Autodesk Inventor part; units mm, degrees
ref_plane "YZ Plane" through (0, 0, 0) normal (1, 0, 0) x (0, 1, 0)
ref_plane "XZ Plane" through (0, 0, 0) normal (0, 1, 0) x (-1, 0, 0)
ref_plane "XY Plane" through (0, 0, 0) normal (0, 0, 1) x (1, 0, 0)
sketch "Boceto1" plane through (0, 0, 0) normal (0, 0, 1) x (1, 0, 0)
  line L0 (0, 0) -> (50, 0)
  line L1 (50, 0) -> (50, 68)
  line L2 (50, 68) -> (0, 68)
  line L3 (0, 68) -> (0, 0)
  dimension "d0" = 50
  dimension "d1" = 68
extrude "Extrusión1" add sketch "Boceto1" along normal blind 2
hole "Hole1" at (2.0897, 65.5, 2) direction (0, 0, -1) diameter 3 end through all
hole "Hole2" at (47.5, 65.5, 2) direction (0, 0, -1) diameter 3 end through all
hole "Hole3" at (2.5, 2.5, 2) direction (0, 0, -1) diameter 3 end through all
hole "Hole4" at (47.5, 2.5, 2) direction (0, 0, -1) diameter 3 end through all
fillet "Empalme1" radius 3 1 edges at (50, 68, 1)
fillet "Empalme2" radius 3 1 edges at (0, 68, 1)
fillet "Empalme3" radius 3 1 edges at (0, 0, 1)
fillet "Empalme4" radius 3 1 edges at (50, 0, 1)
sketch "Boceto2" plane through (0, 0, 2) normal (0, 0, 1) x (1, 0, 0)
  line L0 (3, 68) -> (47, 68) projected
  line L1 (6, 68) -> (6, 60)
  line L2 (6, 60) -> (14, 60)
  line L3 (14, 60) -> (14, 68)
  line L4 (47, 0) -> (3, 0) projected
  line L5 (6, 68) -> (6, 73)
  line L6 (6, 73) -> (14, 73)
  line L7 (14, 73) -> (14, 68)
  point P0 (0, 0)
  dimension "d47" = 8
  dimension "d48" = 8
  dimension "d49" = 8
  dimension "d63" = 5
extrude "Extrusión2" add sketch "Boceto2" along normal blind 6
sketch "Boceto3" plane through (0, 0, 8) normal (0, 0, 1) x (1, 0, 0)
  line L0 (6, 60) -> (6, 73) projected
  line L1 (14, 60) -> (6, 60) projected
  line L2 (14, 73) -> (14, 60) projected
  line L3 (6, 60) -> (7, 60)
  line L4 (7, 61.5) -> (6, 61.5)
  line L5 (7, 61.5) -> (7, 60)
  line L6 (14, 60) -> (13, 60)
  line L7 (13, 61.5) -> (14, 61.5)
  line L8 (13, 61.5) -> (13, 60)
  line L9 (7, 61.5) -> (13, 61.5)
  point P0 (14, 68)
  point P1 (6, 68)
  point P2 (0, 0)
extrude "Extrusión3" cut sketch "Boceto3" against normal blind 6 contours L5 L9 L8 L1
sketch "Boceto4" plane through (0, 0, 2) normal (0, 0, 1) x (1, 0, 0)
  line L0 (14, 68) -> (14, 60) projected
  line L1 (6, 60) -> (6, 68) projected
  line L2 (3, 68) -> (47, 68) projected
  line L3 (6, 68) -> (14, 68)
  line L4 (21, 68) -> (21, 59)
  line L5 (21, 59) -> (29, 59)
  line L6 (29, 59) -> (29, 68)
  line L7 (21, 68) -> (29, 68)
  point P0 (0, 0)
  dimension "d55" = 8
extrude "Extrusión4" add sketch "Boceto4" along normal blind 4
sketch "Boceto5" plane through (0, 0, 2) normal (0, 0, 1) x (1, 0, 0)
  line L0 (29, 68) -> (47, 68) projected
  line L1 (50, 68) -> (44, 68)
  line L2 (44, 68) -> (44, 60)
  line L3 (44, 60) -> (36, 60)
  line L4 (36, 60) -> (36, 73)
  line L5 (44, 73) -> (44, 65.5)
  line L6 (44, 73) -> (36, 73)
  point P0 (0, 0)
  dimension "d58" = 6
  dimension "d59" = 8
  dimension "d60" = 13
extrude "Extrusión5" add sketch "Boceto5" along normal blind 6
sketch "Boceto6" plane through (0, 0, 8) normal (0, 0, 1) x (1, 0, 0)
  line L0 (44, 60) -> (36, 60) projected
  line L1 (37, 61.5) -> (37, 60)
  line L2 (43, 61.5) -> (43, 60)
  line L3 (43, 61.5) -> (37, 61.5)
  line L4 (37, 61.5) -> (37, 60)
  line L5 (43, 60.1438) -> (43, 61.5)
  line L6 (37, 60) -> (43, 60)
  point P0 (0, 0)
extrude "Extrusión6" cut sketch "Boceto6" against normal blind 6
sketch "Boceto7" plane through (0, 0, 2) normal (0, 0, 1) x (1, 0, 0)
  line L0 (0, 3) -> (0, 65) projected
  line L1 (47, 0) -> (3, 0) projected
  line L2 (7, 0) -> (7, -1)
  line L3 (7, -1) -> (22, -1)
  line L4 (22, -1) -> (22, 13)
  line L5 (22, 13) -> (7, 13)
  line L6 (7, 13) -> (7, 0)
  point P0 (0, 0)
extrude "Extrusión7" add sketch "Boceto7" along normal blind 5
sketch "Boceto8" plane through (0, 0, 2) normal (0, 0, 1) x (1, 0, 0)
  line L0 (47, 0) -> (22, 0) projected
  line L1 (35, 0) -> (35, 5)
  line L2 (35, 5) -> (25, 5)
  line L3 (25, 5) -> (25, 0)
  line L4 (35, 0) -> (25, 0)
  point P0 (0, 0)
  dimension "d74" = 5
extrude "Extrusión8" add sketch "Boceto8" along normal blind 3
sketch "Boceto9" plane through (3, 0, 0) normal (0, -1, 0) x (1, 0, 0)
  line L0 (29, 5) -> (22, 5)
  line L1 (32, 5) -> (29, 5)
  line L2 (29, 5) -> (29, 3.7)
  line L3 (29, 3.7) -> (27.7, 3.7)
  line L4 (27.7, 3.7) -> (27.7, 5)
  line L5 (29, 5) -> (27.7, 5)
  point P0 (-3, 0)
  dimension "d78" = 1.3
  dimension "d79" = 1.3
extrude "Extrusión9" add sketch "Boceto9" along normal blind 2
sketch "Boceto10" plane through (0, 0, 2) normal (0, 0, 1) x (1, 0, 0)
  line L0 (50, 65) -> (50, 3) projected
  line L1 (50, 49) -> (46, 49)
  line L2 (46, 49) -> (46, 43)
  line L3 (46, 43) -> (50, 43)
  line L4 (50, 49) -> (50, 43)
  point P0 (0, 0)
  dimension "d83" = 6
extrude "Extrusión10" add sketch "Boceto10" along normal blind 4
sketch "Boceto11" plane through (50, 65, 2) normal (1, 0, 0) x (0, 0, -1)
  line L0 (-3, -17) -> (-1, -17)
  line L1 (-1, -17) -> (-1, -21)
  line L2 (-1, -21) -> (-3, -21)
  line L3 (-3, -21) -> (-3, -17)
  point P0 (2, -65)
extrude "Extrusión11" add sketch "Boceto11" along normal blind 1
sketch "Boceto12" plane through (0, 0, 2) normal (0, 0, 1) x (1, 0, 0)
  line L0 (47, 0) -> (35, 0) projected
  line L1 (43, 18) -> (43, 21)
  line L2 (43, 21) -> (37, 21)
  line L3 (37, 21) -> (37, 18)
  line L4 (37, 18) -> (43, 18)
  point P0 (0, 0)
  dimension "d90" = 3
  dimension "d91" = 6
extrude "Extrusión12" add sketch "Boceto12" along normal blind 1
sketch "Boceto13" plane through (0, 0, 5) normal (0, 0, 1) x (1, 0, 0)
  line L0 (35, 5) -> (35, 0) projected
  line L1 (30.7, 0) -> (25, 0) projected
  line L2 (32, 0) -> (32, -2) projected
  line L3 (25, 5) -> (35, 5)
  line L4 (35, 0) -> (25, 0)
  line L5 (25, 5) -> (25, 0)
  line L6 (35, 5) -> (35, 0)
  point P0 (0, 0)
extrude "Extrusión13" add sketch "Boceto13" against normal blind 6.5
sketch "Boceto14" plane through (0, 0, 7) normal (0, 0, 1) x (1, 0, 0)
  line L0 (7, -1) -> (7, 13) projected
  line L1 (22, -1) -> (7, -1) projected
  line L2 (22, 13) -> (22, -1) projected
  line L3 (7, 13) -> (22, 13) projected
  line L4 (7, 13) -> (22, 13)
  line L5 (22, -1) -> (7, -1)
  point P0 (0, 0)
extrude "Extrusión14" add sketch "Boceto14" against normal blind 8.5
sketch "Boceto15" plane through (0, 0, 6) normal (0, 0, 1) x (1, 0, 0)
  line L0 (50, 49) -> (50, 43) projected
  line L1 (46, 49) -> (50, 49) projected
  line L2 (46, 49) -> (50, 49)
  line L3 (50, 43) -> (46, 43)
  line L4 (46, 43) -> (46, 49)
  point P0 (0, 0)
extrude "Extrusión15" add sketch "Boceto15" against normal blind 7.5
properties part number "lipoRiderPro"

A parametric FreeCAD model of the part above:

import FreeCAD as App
import Part
import Sketcher
from FreeCAD import Vector


def edges_at(feature, points):
    """Names of the edges that pass closest to the given points."""
    edges = feature.Shape.Edges
    near = lambda p: min(range(len(edges)), key=lambda i: edges[i].distToShape(Part.Vertex(*p))[0])
    return sorted({f"Edge{near(p) + 1}" for p in points})


def add_polygon(sketch, points):
    """Adds a closed chain of lines whose ends are joined by coincident constraints."""
    first, n = sketch.GeometryCount, len(points)
    for a, b in zip(points, points[1:] + points[:1]):
        sketch.addGeometry(Part.LineSegment(App.Vector(*a, 0), App.Vector(*b, 0)), False)
    for i in range(n):
        sketch.addConstraint(Sketcher.Constraint("Coincident", first + i, 2, first + (i + 1) % n, 1))

doc = App.newDocument("Part")
body = doc.addObject("PartDesign::Body", "Body")

# Sketch on XY plane
sketch1 = body.newObject("Sketcher::SketchObject", "Sketch")
sketch1.AttachmentSupport = (doc.getObject("XY_Plane"), [""])
sketch1.MapMode = "FlatFace"
add_polygon(sketch1, [(0, 68), (0, 0), (50, 0), (50, 68)])  # lines 0-3
sketch1.addConstraint([
    Sketcher.Constraint("Vertical", 0),
    Sketcher.Constraint("Horizontal", 1),
    Sketcher.Constraint("Vertical", 2),
    Sketcher.Constraint("Horizontal", 3),
    Sketcher.Constraint("Coincident", 0, 2, -1, 1),
    Sketcher.Constraint("DistanceX", 1, 1, 1, 2, 50.0),
    Sketcher.Constraint("DistanceY", 0, 2, 0, 1, 68.0),
])
pad1 = body.newObject("PartDesign::Pad", "Pad")
pad1.Profile = sketch1
pad1.Length = 2

# Sketch on XY plane
sketch2 = body.newObject("Sketcher::SketchObject", "Sketch001")
sketch2.AttachmentSupport = (doc.getObject("XY_Plane"), [""])
sketch2.MapMode = "FlatFace"
sketch2.AttachmentOffset = App.Placement(Vector(0, 0, 2), App.Rotation())
sketch2.addGeometry(Part.Circle(Vector(2.1, 65.5, 0), Vector(0, 0, 1), 1.5), False)
sketch2.addConstraint([
    Sketcher.Constraint("Diameter", 0, 3.0),
    Sketcher.Constraint("DistanceY", -1, 1, 0, 3, 65.5),
    Sketcher.Constraint("DistanceX", -1, 1, 0, 3, 2.0897),
])
doc.recompute()
hole = body.newObject("PartDesign::Hole", "Hole")
hole.Profile = sketch2
hole.ThreadType = "None"
hole.Diameter = 3
hole.DepthType = "ThroughAll"

# Sketch on XY plane
sketch3 = body.newObject("Sketcher::SketchObject", "Sketch002")
sketch3.AttachmentSupport = (doc.getObject("XY_Plane"), [""])
sketch3.MapMode = "FlatFace"
sketch3.AttachmentOffset = App.Placement(Vector(0, 0, 2), App.Rotation())
sketch3.addGeometry(Part.Circle(Vector(47.5, 65.5, 0), Vector(0, 0, 1), 1.5), False)
sketch3.addConstraint([
    Sketcher.Constraint("Diameter", 0, 3.0),
    Sketcher.Constraint("DistanceX", -1, 1, 0, 3, 47.5),
    Sketcher.Constraint("DistanceY", -1, 1, 0, 3, 65.5),
])
doc.recompute()
hole2 = body.newObject("PartDesign::Hole", "Hole001")
hole2.Profile = sketch3
hole2.ThreadType = "None"
hole2.Diameter = 3
hole2.DepthType = "ThroughAll"

# Sketch on XY plane
sketch4 = body.newObject("Sketcher::SketchObject", "Sketch003")
sketch4.AttachmentSupport = (doc.getObject("XY_Plane"), [""])
sketch4.MapMode = "FlatFace"
sketch4.AttachmentOffset = App.Placement(Vector(0, 0, 2), App.Rotation())
sketch4.addGeometry(Part.Circle(Vector(2.5, 2.5, 0), Vector(0, 0, 1), 1.5), False)
sketch4.addConstraint([
    Sketcher.Constraint("Diameter", 0, 3.0),
    Sketcher.Constraint("DistanceX", -1, 1, 0, 3, 2.5),
    Sketcher.Constraint("DistanceY", -1, 1, 0, 3, 2.5),
])
doc.recompute()
hole3 = body.newObject("PartDesign::Hole", "Hole002")
hole3.Profile = sketch4
hole3.ThreadType = "None"
hole3.Diameter = 3
hole3.DepthType = "ThroughAll"

# Sketch on XY plane
sketch5 = body.newObject("Sketcher::SketchObject", "Sketch004")
sketch5.AttachmentSupport = (doc.getObject("XY_Plane"), [""])
sketch5.MapMode = "FlatFace"
sketch5.AttachmentOffset = App.Placement(Vector(0, 0, 2), App.Rotation())
sketch5.addGeometry(Part.Circle(Vector(47.5, 2.5, 0), Vector(0, 0, 1), 1.5), False)
sketch5.addConstraint([
    Sketcher.Constraint("Diameter", 0, 3.0),
    Sketcher.Constraint("DistanceX", -1, 1, 0, 3, 47.5),
    Sketcher.Constraint("DistanceY", -1, 1, 0, 3, 2.5),
])
doc.recompute()
hole4 = body.newObject("PartDesign::Hole", "Hole003")
hole4.Profile = sketch5
hole4.ThreadType = "None"
hole4.Diameter = 3
hole4.DepthType = "ThroughAll"
doc.recompute()

fillet = body.newObject("PartDesign::Fillet", "Fillet")
fillet.Base = (hole4, edges_at(hole4, [(50, 68, 1)]))
fillet.Radius = 3
doc.recompute()

fillet2 = body.newObject("PartDesign::Fillet", "Fillet001")
fillet2.Base = (fillet, edges_at(fillet, [(0, 68, 1)]))
fillet2.Radius = 3
doc.recompute()

fillet3 = body.newObject("PartDesign::Fillet", "Fillet002")
fillet3.Base = (fillet2, edges_at(fillet2, [(0, 0, 1)]))
fillet3.Radius = 3
doc.recompute()

fillet4 = body.newObject("PartDesign::Fillet", "Fillet003")
fillet4.Base = (fillet3, edges_at(fillet3, [(50, 0, 1)]))
fillet4.Radius = 3

# Sketch on XY plane
sketch6 = body.newObject("Sketcher::SketchObject", "Sketch005")
sketch6.AttachmentSupport = (doc.getObject("XY_Plane"), [""])
sketch6.MapMode = "FlatFace"
sketch6.AttachmentOffset = App.Placement(Vector(0, 0, 2), App.Rotation())
add_polygon(sketch6, [(6, 73), (6, 60), (14, 60), (14, 73)])  # lines 0-3
sketch6.addConstraint([
    Sketcher.Constraint("Vertical", 0),
    Sketcher.Constraint("Horizontal", 1),
    Sketcher.Constraint("Vertical", 2),
    Sketcher.Constraint("Horizontal", 3),
    Sketcher.Constraint("DistanceX", 1, 1, 1, 2, 8.0),
    Sketcher.Constraint("DistanceY", 0, 2, 0, 1, 13.0),
    Sketcher.Constraint("DistanceX", -1, 1, 0, 2, 6.0),
    Sketcher.Constraint("DistanceY", -1, 1, 0, 2, 60.0),
])
pad2 = body.newObject("PartDesign::Pad", "Pad001")
pad2.Profile = sketch6
pad2.Length = 6

# Sketch on XY plane
sketch7 = body.newObject("Sketcher::SketchObject", "Sketch006")
sketch7.AttachmentSupport = (doc.getObject("XY_Plane"), [""])
sketch7.MapMode = "FlatFace"
sketch7.AttachmentOffset = App.Placement(Vector(0, 0, 8), App.Rotation())
add_polygon(sketch7, [(7, 61.5), (7, 60), (13, 60), (13, 61.5)])  # lines 0-3
sketch7.addConstraint([
    Sketcher.Constraint("Vertical", 0),
    Sketcher.Constraint("Horizontal", 1),
    Sketcher.Constraint("Vertical", 2),
    Sketcher.Constraint("Horizontal", 3),
    Sketcher.Constraint("DistanceX", 1, 1, 1, 2, 6.0),
    Sketcher.Constraint("DistanceY", 0, 2, 0, 1, 1.5),
    Sketcher.Constraint("DistanceX", -1, 1, 0, 2, 7.0),
    Sketcher.Constraint("DistanceY", -1, 1, 0, 2, 60.0),
])
pocket1 = body.newObject("PartDesign::Pocket", "Pocket")
pocket1.Profile = sketch7
pocket1.Length = 6

# Sketch on XY plane
sketch8 = body.newObject("Sketcher::SketchObject", "Sketch007")
sketch8.AttachmentSupport = (doc.getObject("XY_Plane"), [""])
sketch8.MapMode = "FlatFace"
sketch8.AttachmentOffset = App.Placement(Vector(0, 0, 2), App.Rotation())
add_polygon(sketch8, [(29, 68), (21, 68), (21, 59), (29, 59)])  # lines 0-3
sketch8.addConstraint([
    Sketcher.Constraint("Horizontal", 0),
    Sketcher.Constraint("Vertical", 1),
    Sketcher.Constraint("Horizontal", 2),
    Sketcher.Constraint("Vertical", 3),
    Sketcher.Constraint("DistanceX", 0, 2, 0, 1, 8.0),
    Sketcher.Constraint("DistanceY", 1, 2, 1, 1, 9.0),
    Sketcher.Constraint("DistanceX", -1, 1, 0, 2, 21.0),
    Sketcher.Constraint("DistanceY", -1, 1, 0, 2, 68.0),
])
pad3 = body.newObject("PartDesign::Pad", "Pad002")
pad3.Profile = sketch8
pad3.Length = 4

# Sketch on XY plane
sketch9 = body.newObject("Sketcher::SketchObject", "Sketch008")
sketch9.AttachmentSupport = (doc.getObject("XY_Plane"), [""])
sketch9.MapMode = "FlatFace"
sketch9.AttachmentOffset = App.Placement(Vector(0, 0, 2), App.Rotation())
add_polygon(sketch9, [(36, 73), (36, 60), (44, 60), (44, 73)])  # lines 0-3
sketch9.addConstraint([
    Sketcher.Constraint("Vertical", 0),
    Sketcher.Constraint("Horizontal", 1),
    Sketcher.Constraint("Vertical", 2),
    Sketcher.Constraint("Horizontal", 3),
    Sketcher.Constraint("DistanceX", 1, 1, 1, 2, 8.0),
    Sketcher.Constraint("DistanceY", 0, 2, 0, 1, 13.0),
    Sketcher.Constraint("DistanceX", -1, 1, 0, 2, 36.0),
    Sketcher.Constraint("DistanceY", -1, 1, 0, 2, 60.0),
])
pad4 = body.newObject("PartDesign::Pad", "Pad003")
pad4.Profile = sketch9
pad4.Length = 6

# Sketch on XY plane
sketch10 = body.newObject("Sketcher::SketchObject", "Sketch009")
sketch10.AttachmentSupport = (doc.getObject("XY_Plane"), [""])
sketch10.MapMode = "FlatFace"
sketch10.AttachmentOffset = App.Placement(Vector(0, 0, 8), App.Rotation())
add_polygon(sketch10, [(37, 60), (43, 60), (43, 61.5), (37, 61.5)])  # lines 0-3
sketch10.addConstraint([
    Sketcher.Constraint("Horizontal", 0),
    Sketcher.Constraint("Vertical", 1),
    Sketcher.Constraint("Horizontal", 2),
    Sketcher.Constraint("Vertical", 3),
    Sketcher.Constraint("DistanceX", 0, 1, 0, 2, 6.0),
    Sketcher.Constraint("DistanceY", 1, 1, 1, 2, 1.5),
    Sketcher.Constraint("DistanceX", -1, 1, 0, 2, 43.0),
    Sketcher.Constraint("DistanceY", -1, 1, 0, 2, 60.0),
])
pocket2 = body.newObject("PartDesign::Pocket", "Pocket001")
pocket2.Profile = sketch10
pocket2.Length = 6

# Sketch on XY plane
sketch11 = body.newObject("Sketcher::SketchObject", "Sketch010")
sketch11.AttachmentSupport = (doc.getObject("XY_Plane"), [""])
sketch11.MapMode = "FlatFace"
sketch11.AttachmentOffset = App.Placement(Vector(0, 0, 2), App.Rotation())
add_polygon(sketch11, [(22, -1), (22, 13), (7, 13), (7, -1)])  # lines 0-3
sketch11.addConstraint([
    Sketcher.Constraint("Vertical", 0),
    Sketcher.Constraint("Horizontal", 1),
    Sketcher.Constraint("Vertical", 2),
    Sketcher.Constraint("Horizontal", 3),
    Sketcher.Constraint("DistanceX", 1, 2, 1, 1, 15.0),
    Sketcher.Constraint("DistanceY", 0, 1, 0, 2, 14.0),
    Sketcher.Constraint("DistanceX", -1, 1, 0, 2, 22.0),
    Sketcher.Constraint("DistanceY", -1, 1, 0, 2, 13.0),
])
pad5 = body.newObject("PartDesign::Pad", "Pad004")
pad5.Profile = sketch11
pad5.Length = 5

# Sketch on XY plane
sketch12 = body.newObject("Sketcher::SketchObject", "Sketch011")
sketch12.AttachmentSupport = (doc.getObject("XY_Plane"), [""])
sketch12.MapMode = "FlatFace"
sketch12.AttachmentOffset = App.Placement(Vector(0, 0, 2), App.Rotation())
add_polygon(sketch12, [(25, 0), (35, 0), (35, 5), (25, 5)])  # lines 0-3
sketch12.addConstraint([
    Sketcher.Constraint("Horizontal", 0),
    Sketcher.Constraint("Vertical", 1),
    Sketcher.Constraint("Horizontal", 2),
    Sketcher.Constraint("Vertical", 3),
    Sketcher.Constraint("PointOnObject", 0, 2, -1),
    Sketcher.Constraint("DistanceY", 1, 1, 1, 2, 5.0),
    Sketcher.Constraint("DistanceX", 0, 1, 0, 2, 10.0),
    Sketcher.Constraint("DistanceX", -1, 1, 0, 2, 35.0),
])
pad6 = body.newObject("PartDesign::Pad", "Pad005")
pad6.Profile = sketch12
pad6.Length = 3

# Sketch on XZ plane
sketch13 = body.newObject("Sketcher::SketchObject", "Sketch012")
sketch13.AttachmentSupport = (doc.getObject("XZ_Plane"), [""])
sketch13.MapMode = "FlatFace"
add_polygon(sketch13, [(32, 3.7), (32, 5), (30.7, 5), (30.7, 3.7)])  # lines 0-3
sketch13.addConstraint([
    Sketcher.Constraint("Vertical", 0),
    Sketcher.Constraint("Horizontal", 1),
    Sketcher.Constraint("Vertical", 2),
    Sketcher.Constraint("Horizontal", 3),
    Sketcher.Constraint("Equal", 3, 0),
    Sketcher.Constraint("DistanceX", 1, 2, 1, 1, 1.3),
    Sketcher.Constraint("DistanceX", -1, 1, 0, 2, 32.0),
    Sketcher.Constraint("DistanceY", -1, 1, 0, 2, 5.0),
])
pad7 = body.newObject("PartDesign::Pad", "Pad006")
pad7.Profile = sketch13
pad7.Length = 2

# Sketch on XY plane
sketch14 = body.newObject("Sketcher::SketchObject", "Sketch013")
sketch14.AttachmentSupport = (doc.getObject("XY_Plane"), [""])
sketch14.MapMode = "FlatFace"
sketch14.AttachmentOffset = App.Placement(Vector(0, 0, 2), App.Rotation())
add_polygon(sketch14, [(50, 43), (50, 49), (46, 49), (46, 43)])  # lines 0-3
sketch14.addConstraint([
    Sketcher.Constraint("Vertical", 0),
    Sketcher.Constraint("Horizontal", 1),
    Sketcher.Constraint("Vertical", 2),
    Sketcher.Constraint("Horizontal", 3),
    Sketcher.Constraint("DistanceY", 0, 1, 0, 2, 6.0),
    Sketcher.Constraint("DistanceX", 1, 2, 1, 1, 4.0),
    Sketcher.Constraint("DistanceX", -1, 1, 0, 2, 50.0),
    Sketcher.Constraint("DistanceY", -1, 1, 0, 2, 49.0),
])
pad8 = body.newObject("PartDesign::Pad", "Pad007")
pad8.Profile = sketch14
pad8.Length = 4

# Sketch on YZ plane
sketch15 = body.newObject("Sketcher::SketchObject", "Sketch014")
sketch15.AttachmentSupport = (doc.getObject("YZ_Plane"), [""])
sketch15.MapMode = "FlatFace"
sketch15.AttachmentOffset = App.Placement(Vector(0, 0, 50), App.Rotation())
add_polygon(sketch15, [(48, 3), (48, 5), (44, 5), (44, 3)])  # lines 0-3
sketch15.addConstraint([
    Sketcher.Constraint("Vertical", 0),
    Sketcher.Constraint("Horizontal", 1),
    Sketcher.Constraint("Vertical", 2),
    Sketcher.Constraint("Horizontal", 3),
    Sketcher.Constraint("DistanceX", 1, 2, 1, 1, 4.0),
    Sketcher.Constraint("DistanceY", 0, 1, 0, 2, 2.0),
    Sketcher.Constraint("DistanceX", -1, 1, 0, 2, 48.0),
    Sketcher.Constraint("DistanceY", -1, 1, 0, 2, 5.0),
])
pad9 = body.newObject("PartDesign::Pad", "Pad008")
pad9.Profile = sketch15
pad9.Length = 1

# Sketch on XY plane
sketch16 = body.newObject("Sketcher::SketchObject", "Sketch015")
sketch16.AttachmentSupport = (doc.getObject("XY_Plane"), [""])
sketch16.MapMode = "FlatFace"
sketch16.AttachmentOffset = App.Placement(Vector(0, 0, 2), App.Rotation())
add_polygon(sketch16, [(37, 18), (43, 18), (43, 21), (37, 21)])  # lines 0-3
sketch16.addConstraint([
    Sketcher.Constraint("Horizontal", 0),
    Sketcher.Constraint("Vertical", 1),
    Sketcher.Constraint("Horizontal", 2),
    Sketcher.Constraint("Vertical", 3),
    Sketcher.Constraint("DistanceX", 0, 1, 0, 2, 6.0),
    Sketcher.Constraint("DistanceY", 1, 1, 1, 2, 3.0),
    Sketcher.Constraint("DistanceX", -1, 1, 0, 2, 43.0),
    Sketcher.Constraint("DistanceY", -1, 1, 0, 2, 18.0),
])
pad10 = body.newObject("PartDesign::Pad", "Pad009")
pad10.Profile = sketch16
pad10.Length = 1

# Sketch on XY plane
sketch17 = body.newObject("Sketcher::SketchObject", "Sketch016")
sketch17.AttachmentSupport = (doc.getObject("XY_Plane"), [""])
sketch17.MapMode = "FlatFace"
sketch17.AttachmentOffset = App.Placement(Vector(0, 0, 5), App.Rotation())
add_polygon(sketch17, [(35, 0), (35, 5), (25, 5), (25, 0)])  # lines 0-3
sketch17.addConstraint([
    Sketcher.Constraint("Vertical", 0),
    Sketcher.Constraint("Horizontal", 1),
    Sketcher.Constraint("Vertical", 2),
    Sketcher.Constraint("Horizontal", 3),
    Sketcher.Constraint("PointOnObject", 2, 2, -1),
    Sketcher.Constraint("DistanceX", 1, 2, 1, 1, 10.0),
    Sketcher.Constraint("DistanceY", 0, 1, 0, 2, 5.0),
    Sketcher.Constraint("DistanceX", -1, 1, 0, 2, 35.0),
])
pad11 = body.newObject("PartDesign::Pad", "Pad010")
pad11.Profile = sketch17
pad11.Length = 6.5
pad11.Reversed = True

# Sketch on XY plane
sketch18 = body.newObject("Sketcher::SketchObject", "Sketch017")
sketch18.AttachmentSupport = (doc.getObject("XY_Plane"), [""])
sketch18.MapMode = "FlatFace"
sketch18.AttachmentOffset = App.Placement(Vector(0, 0, 7), App.Rotation())
add_polygon(sketch18, [(7, 13), (7, -1), (22, -1), (22, 13)])  # lines 0-3
sketch18.addConstraint([
    Sketcher.Constraint("Vertical", 0),
    Sketcher.Constraint("Horizontal", 1),
    Sketcher.Constraint("Vertical", 2),
    Sketcher.Constraint("Horizontal", 3),
    Sketcher.Constraint("DistanceX", 1, 1, 1, 2, 15.0),
    Sketcher.Constraint("DistanceY", 0, 2, 0, 1, 14.0),
    Sketcher.Constraint("DistanceX", -1, 1, 0, 2, 7.0),
    Sketcher.Constraint("DistanceY", 0, 2, -1, 1, 1.0),
])
pad12 = body.newObject("PartDesign::Pad", "Pad011")
pad12.Profile = sketch18
pad12.Length = 8.5
pad12.Reversed = True

# Sketch on XY plane
sketch19 = body.newObject("Sketcher::SketchObject", "Sketch018")
sketch19.AttachmentSupport = (doc.getObject("XY_Plane"), [""])
sketch19.MapMode = "FlatFace"
sketch19.AttachmentOffset = App.Placement(Vector(0, 0, 6), App.Rotation())
add_polygon(sketch19, [(50, 43), (50, 49), (46, 49), (46, 43)])  # lines 0-3
sketch19.addConstraint([
    Sketcher.Constraint("Vertical", 0),
    Sketcher.Constraint("Horizontal", 1),
    Sketcher.Constraint("Vertical", 2),
    Sketcher.Constraint("Horizontal", 3),
    Sketcher.Constraint("DistanceX", 1, 2, 1, 1, 4.0),
    Sketcher.Constraint("DistanceY", 0, 1, 0, 2, 6.0),
    Sketcher.Constraint("DistanceX", -1, 1, 0, 2, 50.0),
    Sketcher.Constraint("DistanceY", -1, 1, 0, 2, 49.0),
])
pad13 = body.newObject("PartDesign::Pad", "Pad012")
pad13.Profile = sketch19
pad13.Length = 7.5
pad13.Reversed = True

doc.recompute()
